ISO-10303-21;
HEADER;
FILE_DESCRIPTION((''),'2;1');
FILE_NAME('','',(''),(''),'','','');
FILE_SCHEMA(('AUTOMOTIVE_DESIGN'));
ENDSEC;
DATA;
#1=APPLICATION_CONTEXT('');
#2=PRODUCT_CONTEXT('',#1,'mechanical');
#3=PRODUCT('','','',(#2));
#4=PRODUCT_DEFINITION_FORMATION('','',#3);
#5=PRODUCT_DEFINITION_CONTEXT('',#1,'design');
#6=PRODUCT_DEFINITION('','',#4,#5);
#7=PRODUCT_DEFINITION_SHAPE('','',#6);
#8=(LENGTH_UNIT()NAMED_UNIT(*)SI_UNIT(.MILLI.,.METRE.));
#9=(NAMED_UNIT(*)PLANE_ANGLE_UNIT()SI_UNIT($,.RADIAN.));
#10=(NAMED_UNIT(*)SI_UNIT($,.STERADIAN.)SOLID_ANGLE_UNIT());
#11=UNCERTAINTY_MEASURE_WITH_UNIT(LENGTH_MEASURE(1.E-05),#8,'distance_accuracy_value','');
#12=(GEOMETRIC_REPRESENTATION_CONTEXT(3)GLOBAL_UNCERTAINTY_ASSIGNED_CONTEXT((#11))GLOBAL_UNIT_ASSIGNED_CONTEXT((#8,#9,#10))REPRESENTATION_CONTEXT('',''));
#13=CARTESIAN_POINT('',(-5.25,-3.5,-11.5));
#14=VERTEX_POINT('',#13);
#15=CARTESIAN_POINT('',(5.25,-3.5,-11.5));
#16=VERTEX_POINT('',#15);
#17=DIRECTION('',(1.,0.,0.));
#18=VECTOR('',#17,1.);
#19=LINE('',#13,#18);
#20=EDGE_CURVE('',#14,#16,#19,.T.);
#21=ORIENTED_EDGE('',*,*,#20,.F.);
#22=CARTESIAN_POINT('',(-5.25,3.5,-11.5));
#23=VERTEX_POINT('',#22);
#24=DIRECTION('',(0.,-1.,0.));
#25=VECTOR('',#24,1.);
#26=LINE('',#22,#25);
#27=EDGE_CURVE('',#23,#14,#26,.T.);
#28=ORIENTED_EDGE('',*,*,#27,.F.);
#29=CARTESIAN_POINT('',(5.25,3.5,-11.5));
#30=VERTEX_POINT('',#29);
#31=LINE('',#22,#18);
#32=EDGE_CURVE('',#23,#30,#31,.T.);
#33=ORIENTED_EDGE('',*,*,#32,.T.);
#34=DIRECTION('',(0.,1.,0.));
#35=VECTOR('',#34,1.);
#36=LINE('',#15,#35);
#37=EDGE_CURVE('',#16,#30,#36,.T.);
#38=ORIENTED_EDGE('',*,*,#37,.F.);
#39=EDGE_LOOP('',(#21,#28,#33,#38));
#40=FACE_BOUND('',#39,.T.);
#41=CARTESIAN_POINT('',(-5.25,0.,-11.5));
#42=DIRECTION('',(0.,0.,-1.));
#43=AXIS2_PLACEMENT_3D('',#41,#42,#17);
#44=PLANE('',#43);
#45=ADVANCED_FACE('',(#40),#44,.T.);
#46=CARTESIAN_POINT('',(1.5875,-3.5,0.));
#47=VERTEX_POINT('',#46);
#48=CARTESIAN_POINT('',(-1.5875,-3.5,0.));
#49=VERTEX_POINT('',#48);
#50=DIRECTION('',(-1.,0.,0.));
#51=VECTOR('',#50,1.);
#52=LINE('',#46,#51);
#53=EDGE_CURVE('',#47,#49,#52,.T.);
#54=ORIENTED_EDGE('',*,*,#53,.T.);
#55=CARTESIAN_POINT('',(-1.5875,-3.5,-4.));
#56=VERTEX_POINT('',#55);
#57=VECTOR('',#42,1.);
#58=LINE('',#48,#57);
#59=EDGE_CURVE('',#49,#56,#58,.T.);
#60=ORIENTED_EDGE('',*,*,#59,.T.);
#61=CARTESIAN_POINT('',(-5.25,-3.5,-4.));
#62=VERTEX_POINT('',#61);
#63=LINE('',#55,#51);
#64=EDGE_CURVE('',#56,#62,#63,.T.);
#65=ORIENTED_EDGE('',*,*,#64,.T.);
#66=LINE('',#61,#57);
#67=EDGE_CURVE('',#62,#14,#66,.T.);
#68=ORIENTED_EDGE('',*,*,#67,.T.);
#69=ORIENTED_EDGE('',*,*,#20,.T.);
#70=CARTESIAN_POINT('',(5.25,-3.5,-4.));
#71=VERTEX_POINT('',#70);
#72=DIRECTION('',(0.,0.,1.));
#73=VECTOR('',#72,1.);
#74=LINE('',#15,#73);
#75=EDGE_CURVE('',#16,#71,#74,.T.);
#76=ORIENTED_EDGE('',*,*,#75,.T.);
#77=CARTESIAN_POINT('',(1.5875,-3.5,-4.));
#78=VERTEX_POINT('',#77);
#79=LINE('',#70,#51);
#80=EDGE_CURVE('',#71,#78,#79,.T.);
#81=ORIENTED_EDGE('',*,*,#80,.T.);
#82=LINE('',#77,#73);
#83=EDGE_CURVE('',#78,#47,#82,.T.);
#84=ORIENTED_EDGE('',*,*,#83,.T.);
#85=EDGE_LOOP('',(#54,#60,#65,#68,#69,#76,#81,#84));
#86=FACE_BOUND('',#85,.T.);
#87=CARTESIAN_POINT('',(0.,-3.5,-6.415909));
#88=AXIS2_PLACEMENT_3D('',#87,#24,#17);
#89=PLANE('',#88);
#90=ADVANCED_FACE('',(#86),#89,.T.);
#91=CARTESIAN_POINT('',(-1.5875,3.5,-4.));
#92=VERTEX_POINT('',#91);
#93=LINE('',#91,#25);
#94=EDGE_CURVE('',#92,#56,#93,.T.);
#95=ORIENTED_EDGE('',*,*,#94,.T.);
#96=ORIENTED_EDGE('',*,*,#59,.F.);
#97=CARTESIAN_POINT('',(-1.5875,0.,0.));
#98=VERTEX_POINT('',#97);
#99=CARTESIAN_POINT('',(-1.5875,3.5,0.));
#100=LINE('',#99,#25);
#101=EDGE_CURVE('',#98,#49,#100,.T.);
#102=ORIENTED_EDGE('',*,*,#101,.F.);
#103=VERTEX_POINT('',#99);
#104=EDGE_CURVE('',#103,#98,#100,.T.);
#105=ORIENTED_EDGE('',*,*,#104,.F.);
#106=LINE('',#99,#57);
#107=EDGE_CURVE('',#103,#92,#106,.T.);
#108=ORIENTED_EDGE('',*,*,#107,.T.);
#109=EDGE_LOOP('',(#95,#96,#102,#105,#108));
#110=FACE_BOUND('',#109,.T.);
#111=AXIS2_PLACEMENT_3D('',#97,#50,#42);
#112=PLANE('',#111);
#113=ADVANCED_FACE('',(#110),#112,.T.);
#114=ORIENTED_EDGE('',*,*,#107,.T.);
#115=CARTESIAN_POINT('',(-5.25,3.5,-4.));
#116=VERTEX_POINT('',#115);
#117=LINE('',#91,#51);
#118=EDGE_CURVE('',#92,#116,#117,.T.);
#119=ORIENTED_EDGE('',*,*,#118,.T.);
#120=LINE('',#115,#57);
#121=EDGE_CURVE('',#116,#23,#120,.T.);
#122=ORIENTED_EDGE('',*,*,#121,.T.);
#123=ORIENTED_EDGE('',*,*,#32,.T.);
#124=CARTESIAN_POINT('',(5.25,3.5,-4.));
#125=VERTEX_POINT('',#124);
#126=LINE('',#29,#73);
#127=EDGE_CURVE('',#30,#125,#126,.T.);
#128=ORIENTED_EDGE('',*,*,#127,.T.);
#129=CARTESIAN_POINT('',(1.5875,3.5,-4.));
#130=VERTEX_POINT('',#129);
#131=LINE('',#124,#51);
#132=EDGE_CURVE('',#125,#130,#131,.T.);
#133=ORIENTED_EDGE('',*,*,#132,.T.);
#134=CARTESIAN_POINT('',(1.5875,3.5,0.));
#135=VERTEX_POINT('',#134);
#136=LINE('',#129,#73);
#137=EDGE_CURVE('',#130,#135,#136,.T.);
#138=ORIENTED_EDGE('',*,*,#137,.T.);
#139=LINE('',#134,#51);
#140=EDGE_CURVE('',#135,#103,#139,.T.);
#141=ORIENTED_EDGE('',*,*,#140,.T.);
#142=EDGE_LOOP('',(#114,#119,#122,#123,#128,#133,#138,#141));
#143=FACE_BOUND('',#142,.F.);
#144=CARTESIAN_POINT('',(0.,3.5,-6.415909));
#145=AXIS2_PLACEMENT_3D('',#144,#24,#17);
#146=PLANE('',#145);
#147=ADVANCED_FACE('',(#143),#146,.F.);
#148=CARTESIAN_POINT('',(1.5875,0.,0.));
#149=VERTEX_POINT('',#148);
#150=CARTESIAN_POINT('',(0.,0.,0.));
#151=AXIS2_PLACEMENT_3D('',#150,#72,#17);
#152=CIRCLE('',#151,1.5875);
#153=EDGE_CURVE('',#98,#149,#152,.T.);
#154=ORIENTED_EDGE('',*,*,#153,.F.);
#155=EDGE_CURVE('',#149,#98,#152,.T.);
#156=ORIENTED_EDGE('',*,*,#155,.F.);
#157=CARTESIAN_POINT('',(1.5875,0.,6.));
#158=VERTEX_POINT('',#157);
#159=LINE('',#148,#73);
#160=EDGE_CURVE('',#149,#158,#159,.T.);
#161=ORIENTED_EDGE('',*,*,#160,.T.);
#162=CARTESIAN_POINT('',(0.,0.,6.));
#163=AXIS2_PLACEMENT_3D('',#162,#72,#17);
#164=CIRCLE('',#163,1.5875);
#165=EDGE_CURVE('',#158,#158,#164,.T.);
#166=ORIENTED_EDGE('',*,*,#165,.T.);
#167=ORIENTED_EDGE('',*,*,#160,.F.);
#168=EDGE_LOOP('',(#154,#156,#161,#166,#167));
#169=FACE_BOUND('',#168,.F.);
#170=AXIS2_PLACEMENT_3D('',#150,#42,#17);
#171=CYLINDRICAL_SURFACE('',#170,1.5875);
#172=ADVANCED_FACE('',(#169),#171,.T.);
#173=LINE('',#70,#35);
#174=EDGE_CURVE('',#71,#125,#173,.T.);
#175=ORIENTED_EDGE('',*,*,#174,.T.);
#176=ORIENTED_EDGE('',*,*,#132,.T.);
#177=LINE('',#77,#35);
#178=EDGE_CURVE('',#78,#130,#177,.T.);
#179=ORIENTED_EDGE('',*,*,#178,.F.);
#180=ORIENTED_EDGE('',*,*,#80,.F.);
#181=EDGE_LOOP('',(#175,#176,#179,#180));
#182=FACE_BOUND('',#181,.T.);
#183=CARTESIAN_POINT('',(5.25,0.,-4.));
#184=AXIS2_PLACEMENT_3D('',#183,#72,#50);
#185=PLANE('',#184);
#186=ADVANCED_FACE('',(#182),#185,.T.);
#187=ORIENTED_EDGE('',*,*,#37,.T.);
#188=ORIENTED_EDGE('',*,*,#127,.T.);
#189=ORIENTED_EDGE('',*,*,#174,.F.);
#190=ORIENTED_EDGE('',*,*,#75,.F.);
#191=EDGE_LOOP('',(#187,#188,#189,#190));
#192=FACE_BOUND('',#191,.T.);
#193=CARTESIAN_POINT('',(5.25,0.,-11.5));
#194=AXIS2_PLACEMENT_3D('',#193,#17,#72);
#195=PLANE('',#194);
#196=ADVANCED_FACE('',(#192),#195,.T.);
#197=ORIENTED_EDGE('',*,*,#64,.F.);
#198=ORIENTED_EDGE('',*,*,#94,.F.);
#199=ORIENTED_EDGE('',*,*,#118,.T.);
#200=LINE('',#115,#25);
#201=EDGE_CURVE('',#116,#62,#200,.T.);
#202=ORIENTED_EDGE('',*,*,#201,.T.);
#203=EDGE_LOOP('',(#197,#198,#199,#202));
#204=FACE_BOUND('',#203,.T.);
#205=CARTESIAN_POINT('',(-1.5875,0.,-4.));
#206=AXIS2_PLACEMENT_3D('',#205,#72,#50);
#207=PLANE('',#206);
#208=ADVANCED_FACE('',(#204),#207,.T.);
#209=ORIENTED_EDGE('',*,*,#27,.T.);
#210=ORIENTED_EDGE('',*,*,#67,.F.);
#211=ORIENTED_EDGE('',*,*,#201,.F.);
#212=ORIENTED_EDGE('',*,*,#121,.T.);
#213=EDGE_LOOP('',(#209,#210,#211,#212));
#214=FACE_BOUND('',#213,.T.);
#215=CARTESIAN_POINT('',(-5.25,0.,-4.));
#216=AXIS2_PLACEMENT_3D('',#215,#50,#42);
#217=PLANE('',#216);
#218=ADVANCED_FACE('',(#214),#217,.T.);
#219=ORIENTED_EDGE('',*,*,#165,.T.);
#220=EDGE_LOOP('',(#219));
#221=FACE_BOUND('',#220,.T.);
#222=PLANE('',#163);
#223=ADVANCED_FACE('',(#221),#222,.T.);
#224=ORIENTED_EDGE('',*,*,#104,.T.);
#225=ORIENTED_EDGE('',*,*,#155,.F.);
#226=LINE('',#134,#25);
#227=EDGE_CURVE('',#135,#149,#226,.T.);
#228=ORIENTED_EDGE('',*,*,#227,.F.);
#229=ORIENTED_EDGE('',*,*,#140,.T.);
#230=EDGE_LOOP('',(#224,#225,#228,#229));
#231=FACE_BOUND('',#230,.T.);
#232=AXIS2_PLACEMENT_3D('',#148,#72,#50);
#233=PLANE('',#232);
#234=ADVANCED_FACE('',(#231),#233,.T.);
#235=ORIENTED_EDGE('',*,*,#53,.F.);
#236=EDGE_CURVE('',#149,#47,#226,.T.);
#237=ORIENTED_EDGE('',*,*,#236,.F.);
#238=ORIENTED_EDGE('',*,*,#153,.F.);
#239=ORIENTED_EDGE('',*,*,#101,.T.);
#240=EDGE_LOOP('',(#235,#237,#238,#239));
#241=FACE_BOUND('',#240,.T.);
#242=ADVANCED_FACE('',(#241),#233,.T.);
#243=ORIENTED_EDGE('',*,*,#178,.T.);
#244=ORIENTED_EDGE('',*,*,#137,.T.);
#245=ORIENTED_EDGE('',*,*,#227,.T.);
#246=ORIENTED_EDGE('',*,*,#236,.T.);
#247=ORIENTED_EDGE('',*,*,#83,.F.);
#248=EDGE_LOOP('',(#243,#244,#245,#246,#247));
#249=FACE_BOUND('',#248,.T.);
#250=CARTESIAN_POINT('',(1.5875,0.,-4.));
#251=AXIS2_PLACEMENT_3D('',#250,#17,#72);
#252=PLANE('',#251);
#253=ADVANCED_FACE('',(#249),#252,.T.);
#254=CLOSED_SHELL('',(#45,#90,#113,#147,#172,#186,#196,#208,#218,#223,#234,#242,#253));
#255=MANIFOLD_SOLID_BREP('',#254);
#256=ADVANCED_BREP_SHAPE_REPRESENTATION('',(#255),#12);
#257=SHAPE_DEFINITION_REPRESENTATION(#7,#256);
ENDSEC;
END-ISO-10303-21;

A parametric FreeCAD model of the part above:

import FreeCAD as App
import Part
import Sketcher

V = App.Vector

doc = App.newDocument("Part")
body = doc.addObject("PartDesign::Body", "Body")

# Sketch on XZ plane
sketch1 = body.newObject("Sketcher::SketchObject", "Sketch")
sketch1.AttachmentSupport = (doc.getObject("XZ_Plane"), [""])
sketch1.MapMode = "FlatFace"
sketch1.addGeometry(Part.LineSegment(V(1.5875, -4, 0), V(1.5875, 0, 0)), False)
sketch1.addGeometry(Part.LineSegment(V(1.5875, 0, 0), V(-1.5875, 0, 0)), False)
sketch1.addGeometry(Part.LineSegment(V(-1.5875, 0, 0), V(-1.5875, -4, 0)), False)
sketch1.addGeometry(Part.LineSegment(V(-1.5875, -4, 0), V(-5.25, -4, 0)), False)
sketch1.addGeometry(Part.LineSegment(V(-5.25, -4, 0), V(-5.25, -11.5, 0)), False)
sketch1.addGeometry(Part.LineSegment(V(-5.25, -11.5, 0), V(5.25, -11.5, 0)), False)
sketch1.addGeometry(Part.LineSegment(V(5.25, -11.5, 0), V(5.25, -4, 0)), False)
sketch1.addGeometry(Part.LineSegment(V(5.25, -4, 0), V(1.5875, -4, 0)), False)
sketch1.addConstraint(Sketcher.Constraint("Coincident", 0, 2, 1, 1))
sketch1.addConstraint(Sketcher.Constraint("Coincident", 1, 2, 2, 1))
sketch1.addConstraint(Sketcher.Constraint("Coincident", 2, 2, 3, 1))
sketch1.addConstraint(Sketcher.Constraint("Coincident", 3, 2, 4, 1))
sketch1.addConstraint(Sketcher.Constraint("Coincident", 4, 2, 5, 1))
sketch1.addConstraint(Sketcher.Constraint("Coincident", 5, 2, 6, 1))
sketch1.addConstraint(Sketcher.Constraint("Coincident", 6, 2, 7, 1))
sketch1.addConstraint(Sketcher.Constraint("Coincident", 7, 2, 0, 1))
sketch1.addConstraint(Sketcher.Constraint("Vertical", 0))
sketch1.addConstraint(Sketcher.Constraint("Horizontal", 1))
sketch1.addConstraint(Sketcher.Constraint("Vertical", 2))
sketch1.addConstraint(Sketcher.Constraint("Horizontal", 3))
sketch1.addConstraint(Sketcher.Constraint("Vertical", 4))
sketch1.addConstraint(Sketcher.Constraint("Horizontal", 5))
sketch1.addConstraint(Sketcher.Constraint("Vertical", 6))
sketch1.addConstraint(Sketcher.Constraint("Horizontal", 7))
sketch1.addConstraint(Sketcher.Constraint("Symmetric", 0, 2, 1, 2, -1, 1))
sketch1.addConstraint(Sketcher.Constraint("Symmetric", 3, 2, 6, 2, -2))
sketch1.addConstraint(Sketcher.Constraint("DistanceY", 0, 1, 0, 2, 4.0))
sketch1.addConstraint(Sketcher.Constraint("DistanceX", 5, 1, 5, 2, 10.5))
sketch1.addConstraint(Sketcher.Constraint("DistanceY", 4, 2, 4, 1, 7.5))
sketch1.addConstraint(Sketcher.Constraint("DistanceX", 1, 2, 1, 1, 3.175))
pad1 = body.newObject("PartDesign::Pad", "Pad")
pad1.Profile = sketch1
pad1.Length = 7
pad1.Midplane = True

# Sketch on XY plane
sketch2 = body.newObject("Sketcher::SketchObject", "Sketch001")
sketch2.AttachmentSupport = (doc.getObject("XY_Plane"), [""])
sketch2.MapMode = "FlatFace"
sketch2.addGeometry(Part.Circle(V(0, 0, 0), V(0, 0, 1), 1.5875), False)
sketch2.addConstraint(Sketcher.Constraint("Coincident", 0, 3, -1, 1))
sketch2.addConstraint(Sketcher.Constraint("Diameter", 0, 3.175))
pad2 = body.newObject("PartDesign::Pad", "Pad001")
pad2.Profile = sketch2
pad2.Length = 6

doc.recompute()
